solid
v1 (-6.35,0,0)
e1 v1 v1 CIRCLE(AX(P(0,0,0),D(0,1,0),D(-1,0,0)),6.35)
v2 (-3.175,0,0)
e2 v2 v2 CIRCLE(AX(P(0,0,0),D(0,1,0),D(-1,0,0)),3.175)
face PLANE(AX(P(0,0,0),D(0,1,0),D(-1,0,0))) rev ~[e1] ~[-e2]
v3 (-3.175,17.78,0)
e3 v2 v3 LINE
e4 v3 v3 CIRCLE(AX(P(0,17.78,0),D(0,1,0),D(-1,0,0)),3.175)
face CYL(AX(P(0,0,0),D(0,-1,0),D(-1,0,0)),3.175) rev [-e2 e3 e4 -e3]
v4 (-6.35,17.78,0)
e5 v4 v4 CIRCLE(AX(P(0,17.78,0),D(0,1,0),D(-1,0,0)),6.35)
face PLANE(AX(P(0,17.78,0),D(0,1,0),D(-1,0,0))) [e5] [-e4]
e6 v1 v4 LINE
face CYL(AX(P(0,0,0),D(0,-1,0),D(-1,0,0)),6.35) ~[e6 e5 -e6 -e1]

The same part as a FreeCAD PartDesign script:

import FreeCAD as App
import Part
import Sketcher
Q = App.Units.Quantity

doc = App.newDocument("Part")
body = doc.addObject("PartDesign::Body", "Body")

sketch1 = doc.addObject("Sketcher::SketchObject", "Sketch")
body.addObject(sketch1)
sketch1.AttachmentSupport = (doc.XZ_Plane, [""])
sketch1.MapMode = "FlatFace"
sketch1.addGeometry([
    Part.Circle(App.Vector(0, 0, 0), App.Vector(0, 0, 1), 6.35),
    Part.Circle(App.Vector(0, 0, 0), App.Vector(0, 0, 1), 3.175),
], False)
sketch1.addConstraint([
    Sketcher.Constraint("Coincident", 0, 3, -1, 1),
    Sketcher.Constraint("Coincident", 1, 3, -1, 1),
    Sketcher.Constraint("Diameter", 0, Q("0.5 in")),
    Sketcher.Constraint("Diameter", 1, Q("0.25 in")),
])
pad1 = doc.addObject("PartDesign::Pad", "Pad")
body.addObject(pad1)
pad1.Profile = sketch1
pad1.Length = Q("0.7 in")
pad1.Reversed = True

doc.recompute()
